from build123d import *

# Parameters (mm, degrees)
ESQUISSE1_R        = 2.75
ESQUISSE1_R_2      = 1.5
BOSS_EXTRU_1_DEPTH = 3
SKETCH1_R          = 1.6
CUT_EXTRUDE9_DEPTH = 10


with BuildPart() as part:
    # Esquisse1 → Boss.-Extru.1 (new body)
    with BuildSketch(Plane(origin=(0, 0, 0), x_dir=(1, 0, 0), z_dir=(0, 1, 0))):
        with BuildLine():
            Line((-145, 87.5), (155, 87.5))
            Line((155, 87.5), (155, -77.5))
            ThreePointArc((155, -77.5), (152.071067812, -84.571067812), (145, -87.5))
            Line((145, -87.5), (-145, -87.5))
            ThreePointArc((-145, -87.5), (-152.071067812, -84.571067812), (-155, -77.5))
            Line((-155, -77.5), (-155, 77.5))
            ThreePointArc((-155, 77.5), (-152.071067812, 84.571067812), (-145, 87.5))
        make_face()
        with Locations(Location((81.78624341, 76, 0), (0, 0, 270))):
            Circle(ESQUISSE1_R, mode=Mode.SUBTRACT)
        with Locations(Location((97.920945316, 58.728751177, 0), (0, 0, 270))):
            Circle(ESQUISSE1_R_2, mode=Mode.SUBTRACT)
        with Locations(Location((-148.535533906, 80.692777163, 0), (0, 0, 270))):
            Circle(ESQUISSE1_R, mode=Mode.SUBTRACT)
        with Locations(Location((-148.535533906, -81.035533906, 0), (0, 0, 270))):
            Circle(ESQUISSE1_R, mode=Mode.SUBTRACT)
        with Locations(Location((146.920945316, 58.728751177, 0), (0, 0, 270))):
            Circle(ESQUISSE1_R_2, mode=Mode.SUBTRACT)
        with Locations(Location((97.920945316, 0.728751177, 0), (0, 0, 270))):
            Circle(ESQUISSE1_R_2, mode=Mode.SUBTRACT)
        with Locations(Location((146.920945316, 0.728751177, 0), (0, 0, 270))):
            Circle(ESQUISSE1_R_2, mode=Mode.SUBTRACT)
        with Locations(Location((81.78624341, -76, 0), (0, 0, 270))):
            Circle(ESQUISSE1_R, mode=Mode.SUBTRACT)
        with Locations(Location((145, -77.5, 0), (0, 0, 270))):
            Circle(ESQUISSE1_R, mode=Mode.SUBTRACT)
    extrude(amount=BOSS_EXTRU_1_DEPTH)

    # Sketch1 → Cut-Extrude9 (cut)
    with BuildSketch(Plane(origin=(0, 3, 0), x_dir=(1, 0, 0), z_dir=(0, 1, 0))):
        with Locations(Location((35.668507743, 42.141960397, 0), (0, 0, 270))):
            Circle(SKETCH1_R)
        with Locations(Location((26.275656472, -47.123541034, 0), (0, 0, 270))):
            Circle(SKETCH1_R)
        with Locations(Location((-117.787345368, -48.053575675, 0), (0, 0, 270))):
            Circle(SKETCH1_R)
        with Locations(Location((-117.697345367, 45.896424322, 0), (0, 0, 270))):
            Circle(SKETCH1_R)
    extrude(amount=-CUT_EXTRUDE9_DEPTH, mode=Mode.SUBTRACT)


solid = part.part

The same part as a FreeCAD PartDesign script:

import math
import FreeCAD as App
import Part
import Sketcher

doc = App.newDocument("Part")
body = doc.addObject("PartDesign::Body", "Body")

# Sketch on XZ plane
sketch1 = body.newObject("Sketcher::SketchObject", "Sketch")
sketch1.AttachmentSupport = (doc.getObject("XZ_Plane"), [""])
sketch1.MapMode = "FlatFace"
sketch1.addGeometry(Part.LineSegment(App.Vector(155, -87.5, 0), App.Vector(-145, -87.5, 0)), False)
sketch1.addGeometry(Part.ArcOfCircle(Part.Circle(App.Vector(-145, -77.5, 0), App.Vector(0, 0, 1), 10), math.radians(180), math.radians(270)), False)
sketch1.addGeometry(Part.LineSegment(App.Vector(-155, -77.5, 0), App.Vector(-155, 77.5, 0)), False)
sketch1.addGeometry(Part.ArcOfCircle(Part.Circle(App.Vector(-145, 77.5, 0), App.Vector(0, 0, 1), 10), math.radians(90), math.radians(180)), False)
sketch1.addGeometry(Part.LineSegment(App.Vector(-145, 87.5, 0), App.Vector(145, 87.5, 0)), False)
sketch1.addGeometry(Part.ArcOfCircle(Part.Circle(App.Vector(145, 77.5, 0), App.Vector(0, 0, 1), 10), math.radians(0), math.radians(90)), False)
sketch1.addGeometry(Part.LineSegment(App.Vector(155, 77.5, 0), App.Vector(155, -87.5, 0)), False)
sketch1.addGeometry(Part.Circle(App.Vector(145, 77.5, 0), App.Vector(0, 0, 1), 2.8), False)
sketch1.addGeometry(Part.Circle(App.Vector(81.8, 76, 0), App.Vector(0, 0, 1), 2.8), False)
sketch1.addGeometry(Part.Circle(App.Vector(-148.5, 81, 0), App.Vector(0, 0, 1), 2.8), False)
sketch1.addGeometry(Part.Circle(App.Vector(146.9, -0.7, 0), App.Vector(0, 0, 1), 1.5), False)
sketch1.addGeometry(Part.Circle(App.Vector(97.9, -0.7, 0), App.Vector(0, 0, 1), 1.5), False)
sketch1.addGeometry(Part.Circle(App.Vector(146.9, -58.7, 0), App.Vector(0, 0, 1), 1.5), False)
sketch1.addGeometry(Part.Circle(App.Vector(97.9, -58.7, 0), App.Vector(0, 0, 1), 1.5), False)
sketch1.addGeometry(Part.Circle(App.Vector(81.8, -76, 0), App.Vector(0, 0, 1), 2.8), False)
sketch1.addGeometry(Part.Circle(App.Vector(-148.5, -80.7, 0), App.Vector(0, 0, 1), 2.8), False)
sketch1.addConstraint(Sketcher.Constraint("Tangent", 0, 2, 1, 2))
sketch1.addConstraint(Sketcher.Constraint("Tangent", 1, 1, 2, 1))
sketch1.addConstraint(Sketcher.Constraint("Tangent", 2, 2, 3, 2))
sketch1.addConstraint(Sketcher.Constraint("Tangent", 3, 1, 4, 1))
sketch1.addConstraint(Sketcher.Constraint("Tangent", 4, 2, 5, 2))
sketch1.addConstraint(Sketcher.Constraint("Tangent", 5, 1, 6, 1))
sketch1.addConstraint(Sketcher.Constraint("Coincident", 6, 2, 0, 1))
sketch1.addConstraint(Sketcher.Constraint("Horizontal", 0))
sketch1.addConstraint(Sketcher.Constraint("Vertical", 2))
sketch1.addConstraint(Sketcher.Constraint("Horizontal", 4))
sketch1.addConstraint(Sketcher.Constraint("Vertical", 6))
sketch1.addConstraint(Sketcher.Constraint("Coincident", 7, 3, 5, 3))
sketch1.addConstraint(Sketcher.Constraint("Equal", 1, 3))
sketch1.addConstraint(Sketcher.Constraint("Equal", 3, 5))
sketch1.addConstraint(Sketcher.Constraint("Equal", 7, 8))
sketch1.addConstraint(Sketcher.Constraint("Equal", 8, 9))
sketch1.addConstraint(Sketcher.Constraint("Equal", 10, 11))
sketch1.addConstraint(Sketcher.Constraint("Equal", 11, 12))
sketch1.addConstraint(Sketcher.Constraint("Equal", 12, 13))
sketch1.addConstraint(Sketcher.Constraint("Equal", 9, 14))
sketch1.addConstraint(Sketcher.Constraint("Equal", 14, 15))
sketch1.addConstraint(Sketcher.Constraint("Symmetric", 1, 3, 5, 3, -1, 1))
sketch1.addConstraint(Sketcher.Constraint("Symmetric", 8, 3, 14, 3, -1))
sketch1.addConstraint(Sketcher.Constraint("Horizontal", 10, 3, 11, 3))
sketch1.addConstraint(Sketcher.Constraint("Horizontal", 12, 3, 13, 3))
sketch1.addConstraint(Sketcher.Constraint("Vertical", 10, 3, 12, 3))
sketch1.addConstraint(Sketcher.Constraint("Vertical", 11, 3, 13, 3))
sketch1.addConstraint(Sketcher.Constraint("Vertical", 9, 3, 15, 3))
sketch1.addConstraint(Sketcher.Constraint("Diameter", 10, 3.0))
sketch1.addConstraint(Sketcher.Constraint("Radius", 1, 10.0))
sketch1.addConstraint(Sketcher.Constraint("Diameter", 7, 5.5))
sketch1.addConstraint(Sketcher.Constraint("DistanceX", 0, 2, 0, 1, 300.0))
sketch1.addConstraint(Sketcher.Constraint("DistanceY", 2, 1, 2, 2, 155.0))
sketch1.addConstraint(Sketcher.Constraint("DistanceY", -1, 1, 8, 3, 76.0))
sketch1.addConstraint(Sketcher.Constraint("DistanceX", 11, 3, 10, 3, 49.0))
sketch1.addConstraint(Sketcher.Constraint("DistanceY", 12, 3, 10, 3, 58.0))
sketch1.addConstraint(Sketcher.Constraint("DistanceX", 8, 3, 10, 3, 65.134702))
sketch1.addConstraint(Sketcher.Constraint("DistanceY", 10, 3, -1, 1, 0.728751))
sketch1.addConstraint(Sketcher.Constraint("DistanceY", 15, 3, 9, 3, 161.728311))
sketch1.addConstraint(Sketcher.Constraint("DistanceX", 15, 3, 13, 3, 246.456479))
sketch1.addConstraint(Sketcher.Constraint("DistanceX", -1, 1, 8, 3, 81.786243))
sketch1.addConstraint(Sketcher.Constraint("DistanceY", -1, 1, 9, 3, 81.035534))
pad1 = body.newObject("PartDesign::Pad", "Pad")
pad1.Profile = sketch1
pad1.Length = 3
pad1.Reversed = True

# Sketch on XZ plane
sketch2 = body.newObject("Sketcher::SketchObject", "Sketch001")
sketch2.AttachmentSupport = (doc.getObject("XZ_Plane"), [""])
sketch2.MapMode = "FlatFace"
sketch2.AttachmentOffset = App.Placement(App.Vector(0, 0, -3), App.Rotation())
sketch2.addGeometry(Part.Circle(App.Vector(35.7, -42.1, 0), App.Vector(0, 0, 1), 1.6), False)
sketch2.addGeometry(Part.Circle(App.Vector(26.3, 47.1, 0), App.Vector(0, 0, 1), 1.6), False)
sketch2.addGeometry(Part.Circle(App.Vector(-117.8, 48.1, 0), App.Vector(0, 0, 1), 1.6), False)
sketch2.addGeometry(Part.Circle(App.Vector(-117.7, -45.9, 0), App.Vector(0, 0, 1), 1.6), False)
sketch2.addConstraint(Sketcher.Constraint("Equal", 0, 1))
sketch2.addConstraint(Sketcher.Constraint("Equal", 1, 2))
sketch2.addConstraint(Sketcher.Constraint("Equal", 2, 3))
sketch2.addConstraint(Sketcher.Constraint("Diameter", 0, 3.2))
sketch2.addConstraint(Sketcher.Constraint("DistanceX", 2, 3, 3, 3, 0.09))
sketch2.addConstraint(Sketcher.Constraint("DistanceY", 3, 3, 2, 3, 93.95))
sketch2.addConstraint(Sketcher.Constraint("DistanceX", 2, 3, 1, 3, 144.063002))
sketch2.addConstraint(Sketcher.Constraint("DistanceY", 0, 3, 1, 3, 89.265501))
sketch2.addConstraint(Sketcher.Constraint("DistanceY", 0, 3, -1, 1, 42.14196))
sketch2.addConstraint(Sketcher.Constraint("DistanceX", 1, 3, 0, 3, 9.392851))
sketch2.addConstraint(Sketcher.Constraint("DistanceX", -1, 1, 0, 3, 35.668508))
sketch2.addConstraint(Sketcher.Constraint("DistanceY", -1, 1, 2, 3, 48.053576))
pocket1 = body.newObject("PartDesign::Pocket", "Pocket")
pocket1.Profile = sketch2
pocket1.Length = 10
pocket1.Reversed = True

doc.recompute()
